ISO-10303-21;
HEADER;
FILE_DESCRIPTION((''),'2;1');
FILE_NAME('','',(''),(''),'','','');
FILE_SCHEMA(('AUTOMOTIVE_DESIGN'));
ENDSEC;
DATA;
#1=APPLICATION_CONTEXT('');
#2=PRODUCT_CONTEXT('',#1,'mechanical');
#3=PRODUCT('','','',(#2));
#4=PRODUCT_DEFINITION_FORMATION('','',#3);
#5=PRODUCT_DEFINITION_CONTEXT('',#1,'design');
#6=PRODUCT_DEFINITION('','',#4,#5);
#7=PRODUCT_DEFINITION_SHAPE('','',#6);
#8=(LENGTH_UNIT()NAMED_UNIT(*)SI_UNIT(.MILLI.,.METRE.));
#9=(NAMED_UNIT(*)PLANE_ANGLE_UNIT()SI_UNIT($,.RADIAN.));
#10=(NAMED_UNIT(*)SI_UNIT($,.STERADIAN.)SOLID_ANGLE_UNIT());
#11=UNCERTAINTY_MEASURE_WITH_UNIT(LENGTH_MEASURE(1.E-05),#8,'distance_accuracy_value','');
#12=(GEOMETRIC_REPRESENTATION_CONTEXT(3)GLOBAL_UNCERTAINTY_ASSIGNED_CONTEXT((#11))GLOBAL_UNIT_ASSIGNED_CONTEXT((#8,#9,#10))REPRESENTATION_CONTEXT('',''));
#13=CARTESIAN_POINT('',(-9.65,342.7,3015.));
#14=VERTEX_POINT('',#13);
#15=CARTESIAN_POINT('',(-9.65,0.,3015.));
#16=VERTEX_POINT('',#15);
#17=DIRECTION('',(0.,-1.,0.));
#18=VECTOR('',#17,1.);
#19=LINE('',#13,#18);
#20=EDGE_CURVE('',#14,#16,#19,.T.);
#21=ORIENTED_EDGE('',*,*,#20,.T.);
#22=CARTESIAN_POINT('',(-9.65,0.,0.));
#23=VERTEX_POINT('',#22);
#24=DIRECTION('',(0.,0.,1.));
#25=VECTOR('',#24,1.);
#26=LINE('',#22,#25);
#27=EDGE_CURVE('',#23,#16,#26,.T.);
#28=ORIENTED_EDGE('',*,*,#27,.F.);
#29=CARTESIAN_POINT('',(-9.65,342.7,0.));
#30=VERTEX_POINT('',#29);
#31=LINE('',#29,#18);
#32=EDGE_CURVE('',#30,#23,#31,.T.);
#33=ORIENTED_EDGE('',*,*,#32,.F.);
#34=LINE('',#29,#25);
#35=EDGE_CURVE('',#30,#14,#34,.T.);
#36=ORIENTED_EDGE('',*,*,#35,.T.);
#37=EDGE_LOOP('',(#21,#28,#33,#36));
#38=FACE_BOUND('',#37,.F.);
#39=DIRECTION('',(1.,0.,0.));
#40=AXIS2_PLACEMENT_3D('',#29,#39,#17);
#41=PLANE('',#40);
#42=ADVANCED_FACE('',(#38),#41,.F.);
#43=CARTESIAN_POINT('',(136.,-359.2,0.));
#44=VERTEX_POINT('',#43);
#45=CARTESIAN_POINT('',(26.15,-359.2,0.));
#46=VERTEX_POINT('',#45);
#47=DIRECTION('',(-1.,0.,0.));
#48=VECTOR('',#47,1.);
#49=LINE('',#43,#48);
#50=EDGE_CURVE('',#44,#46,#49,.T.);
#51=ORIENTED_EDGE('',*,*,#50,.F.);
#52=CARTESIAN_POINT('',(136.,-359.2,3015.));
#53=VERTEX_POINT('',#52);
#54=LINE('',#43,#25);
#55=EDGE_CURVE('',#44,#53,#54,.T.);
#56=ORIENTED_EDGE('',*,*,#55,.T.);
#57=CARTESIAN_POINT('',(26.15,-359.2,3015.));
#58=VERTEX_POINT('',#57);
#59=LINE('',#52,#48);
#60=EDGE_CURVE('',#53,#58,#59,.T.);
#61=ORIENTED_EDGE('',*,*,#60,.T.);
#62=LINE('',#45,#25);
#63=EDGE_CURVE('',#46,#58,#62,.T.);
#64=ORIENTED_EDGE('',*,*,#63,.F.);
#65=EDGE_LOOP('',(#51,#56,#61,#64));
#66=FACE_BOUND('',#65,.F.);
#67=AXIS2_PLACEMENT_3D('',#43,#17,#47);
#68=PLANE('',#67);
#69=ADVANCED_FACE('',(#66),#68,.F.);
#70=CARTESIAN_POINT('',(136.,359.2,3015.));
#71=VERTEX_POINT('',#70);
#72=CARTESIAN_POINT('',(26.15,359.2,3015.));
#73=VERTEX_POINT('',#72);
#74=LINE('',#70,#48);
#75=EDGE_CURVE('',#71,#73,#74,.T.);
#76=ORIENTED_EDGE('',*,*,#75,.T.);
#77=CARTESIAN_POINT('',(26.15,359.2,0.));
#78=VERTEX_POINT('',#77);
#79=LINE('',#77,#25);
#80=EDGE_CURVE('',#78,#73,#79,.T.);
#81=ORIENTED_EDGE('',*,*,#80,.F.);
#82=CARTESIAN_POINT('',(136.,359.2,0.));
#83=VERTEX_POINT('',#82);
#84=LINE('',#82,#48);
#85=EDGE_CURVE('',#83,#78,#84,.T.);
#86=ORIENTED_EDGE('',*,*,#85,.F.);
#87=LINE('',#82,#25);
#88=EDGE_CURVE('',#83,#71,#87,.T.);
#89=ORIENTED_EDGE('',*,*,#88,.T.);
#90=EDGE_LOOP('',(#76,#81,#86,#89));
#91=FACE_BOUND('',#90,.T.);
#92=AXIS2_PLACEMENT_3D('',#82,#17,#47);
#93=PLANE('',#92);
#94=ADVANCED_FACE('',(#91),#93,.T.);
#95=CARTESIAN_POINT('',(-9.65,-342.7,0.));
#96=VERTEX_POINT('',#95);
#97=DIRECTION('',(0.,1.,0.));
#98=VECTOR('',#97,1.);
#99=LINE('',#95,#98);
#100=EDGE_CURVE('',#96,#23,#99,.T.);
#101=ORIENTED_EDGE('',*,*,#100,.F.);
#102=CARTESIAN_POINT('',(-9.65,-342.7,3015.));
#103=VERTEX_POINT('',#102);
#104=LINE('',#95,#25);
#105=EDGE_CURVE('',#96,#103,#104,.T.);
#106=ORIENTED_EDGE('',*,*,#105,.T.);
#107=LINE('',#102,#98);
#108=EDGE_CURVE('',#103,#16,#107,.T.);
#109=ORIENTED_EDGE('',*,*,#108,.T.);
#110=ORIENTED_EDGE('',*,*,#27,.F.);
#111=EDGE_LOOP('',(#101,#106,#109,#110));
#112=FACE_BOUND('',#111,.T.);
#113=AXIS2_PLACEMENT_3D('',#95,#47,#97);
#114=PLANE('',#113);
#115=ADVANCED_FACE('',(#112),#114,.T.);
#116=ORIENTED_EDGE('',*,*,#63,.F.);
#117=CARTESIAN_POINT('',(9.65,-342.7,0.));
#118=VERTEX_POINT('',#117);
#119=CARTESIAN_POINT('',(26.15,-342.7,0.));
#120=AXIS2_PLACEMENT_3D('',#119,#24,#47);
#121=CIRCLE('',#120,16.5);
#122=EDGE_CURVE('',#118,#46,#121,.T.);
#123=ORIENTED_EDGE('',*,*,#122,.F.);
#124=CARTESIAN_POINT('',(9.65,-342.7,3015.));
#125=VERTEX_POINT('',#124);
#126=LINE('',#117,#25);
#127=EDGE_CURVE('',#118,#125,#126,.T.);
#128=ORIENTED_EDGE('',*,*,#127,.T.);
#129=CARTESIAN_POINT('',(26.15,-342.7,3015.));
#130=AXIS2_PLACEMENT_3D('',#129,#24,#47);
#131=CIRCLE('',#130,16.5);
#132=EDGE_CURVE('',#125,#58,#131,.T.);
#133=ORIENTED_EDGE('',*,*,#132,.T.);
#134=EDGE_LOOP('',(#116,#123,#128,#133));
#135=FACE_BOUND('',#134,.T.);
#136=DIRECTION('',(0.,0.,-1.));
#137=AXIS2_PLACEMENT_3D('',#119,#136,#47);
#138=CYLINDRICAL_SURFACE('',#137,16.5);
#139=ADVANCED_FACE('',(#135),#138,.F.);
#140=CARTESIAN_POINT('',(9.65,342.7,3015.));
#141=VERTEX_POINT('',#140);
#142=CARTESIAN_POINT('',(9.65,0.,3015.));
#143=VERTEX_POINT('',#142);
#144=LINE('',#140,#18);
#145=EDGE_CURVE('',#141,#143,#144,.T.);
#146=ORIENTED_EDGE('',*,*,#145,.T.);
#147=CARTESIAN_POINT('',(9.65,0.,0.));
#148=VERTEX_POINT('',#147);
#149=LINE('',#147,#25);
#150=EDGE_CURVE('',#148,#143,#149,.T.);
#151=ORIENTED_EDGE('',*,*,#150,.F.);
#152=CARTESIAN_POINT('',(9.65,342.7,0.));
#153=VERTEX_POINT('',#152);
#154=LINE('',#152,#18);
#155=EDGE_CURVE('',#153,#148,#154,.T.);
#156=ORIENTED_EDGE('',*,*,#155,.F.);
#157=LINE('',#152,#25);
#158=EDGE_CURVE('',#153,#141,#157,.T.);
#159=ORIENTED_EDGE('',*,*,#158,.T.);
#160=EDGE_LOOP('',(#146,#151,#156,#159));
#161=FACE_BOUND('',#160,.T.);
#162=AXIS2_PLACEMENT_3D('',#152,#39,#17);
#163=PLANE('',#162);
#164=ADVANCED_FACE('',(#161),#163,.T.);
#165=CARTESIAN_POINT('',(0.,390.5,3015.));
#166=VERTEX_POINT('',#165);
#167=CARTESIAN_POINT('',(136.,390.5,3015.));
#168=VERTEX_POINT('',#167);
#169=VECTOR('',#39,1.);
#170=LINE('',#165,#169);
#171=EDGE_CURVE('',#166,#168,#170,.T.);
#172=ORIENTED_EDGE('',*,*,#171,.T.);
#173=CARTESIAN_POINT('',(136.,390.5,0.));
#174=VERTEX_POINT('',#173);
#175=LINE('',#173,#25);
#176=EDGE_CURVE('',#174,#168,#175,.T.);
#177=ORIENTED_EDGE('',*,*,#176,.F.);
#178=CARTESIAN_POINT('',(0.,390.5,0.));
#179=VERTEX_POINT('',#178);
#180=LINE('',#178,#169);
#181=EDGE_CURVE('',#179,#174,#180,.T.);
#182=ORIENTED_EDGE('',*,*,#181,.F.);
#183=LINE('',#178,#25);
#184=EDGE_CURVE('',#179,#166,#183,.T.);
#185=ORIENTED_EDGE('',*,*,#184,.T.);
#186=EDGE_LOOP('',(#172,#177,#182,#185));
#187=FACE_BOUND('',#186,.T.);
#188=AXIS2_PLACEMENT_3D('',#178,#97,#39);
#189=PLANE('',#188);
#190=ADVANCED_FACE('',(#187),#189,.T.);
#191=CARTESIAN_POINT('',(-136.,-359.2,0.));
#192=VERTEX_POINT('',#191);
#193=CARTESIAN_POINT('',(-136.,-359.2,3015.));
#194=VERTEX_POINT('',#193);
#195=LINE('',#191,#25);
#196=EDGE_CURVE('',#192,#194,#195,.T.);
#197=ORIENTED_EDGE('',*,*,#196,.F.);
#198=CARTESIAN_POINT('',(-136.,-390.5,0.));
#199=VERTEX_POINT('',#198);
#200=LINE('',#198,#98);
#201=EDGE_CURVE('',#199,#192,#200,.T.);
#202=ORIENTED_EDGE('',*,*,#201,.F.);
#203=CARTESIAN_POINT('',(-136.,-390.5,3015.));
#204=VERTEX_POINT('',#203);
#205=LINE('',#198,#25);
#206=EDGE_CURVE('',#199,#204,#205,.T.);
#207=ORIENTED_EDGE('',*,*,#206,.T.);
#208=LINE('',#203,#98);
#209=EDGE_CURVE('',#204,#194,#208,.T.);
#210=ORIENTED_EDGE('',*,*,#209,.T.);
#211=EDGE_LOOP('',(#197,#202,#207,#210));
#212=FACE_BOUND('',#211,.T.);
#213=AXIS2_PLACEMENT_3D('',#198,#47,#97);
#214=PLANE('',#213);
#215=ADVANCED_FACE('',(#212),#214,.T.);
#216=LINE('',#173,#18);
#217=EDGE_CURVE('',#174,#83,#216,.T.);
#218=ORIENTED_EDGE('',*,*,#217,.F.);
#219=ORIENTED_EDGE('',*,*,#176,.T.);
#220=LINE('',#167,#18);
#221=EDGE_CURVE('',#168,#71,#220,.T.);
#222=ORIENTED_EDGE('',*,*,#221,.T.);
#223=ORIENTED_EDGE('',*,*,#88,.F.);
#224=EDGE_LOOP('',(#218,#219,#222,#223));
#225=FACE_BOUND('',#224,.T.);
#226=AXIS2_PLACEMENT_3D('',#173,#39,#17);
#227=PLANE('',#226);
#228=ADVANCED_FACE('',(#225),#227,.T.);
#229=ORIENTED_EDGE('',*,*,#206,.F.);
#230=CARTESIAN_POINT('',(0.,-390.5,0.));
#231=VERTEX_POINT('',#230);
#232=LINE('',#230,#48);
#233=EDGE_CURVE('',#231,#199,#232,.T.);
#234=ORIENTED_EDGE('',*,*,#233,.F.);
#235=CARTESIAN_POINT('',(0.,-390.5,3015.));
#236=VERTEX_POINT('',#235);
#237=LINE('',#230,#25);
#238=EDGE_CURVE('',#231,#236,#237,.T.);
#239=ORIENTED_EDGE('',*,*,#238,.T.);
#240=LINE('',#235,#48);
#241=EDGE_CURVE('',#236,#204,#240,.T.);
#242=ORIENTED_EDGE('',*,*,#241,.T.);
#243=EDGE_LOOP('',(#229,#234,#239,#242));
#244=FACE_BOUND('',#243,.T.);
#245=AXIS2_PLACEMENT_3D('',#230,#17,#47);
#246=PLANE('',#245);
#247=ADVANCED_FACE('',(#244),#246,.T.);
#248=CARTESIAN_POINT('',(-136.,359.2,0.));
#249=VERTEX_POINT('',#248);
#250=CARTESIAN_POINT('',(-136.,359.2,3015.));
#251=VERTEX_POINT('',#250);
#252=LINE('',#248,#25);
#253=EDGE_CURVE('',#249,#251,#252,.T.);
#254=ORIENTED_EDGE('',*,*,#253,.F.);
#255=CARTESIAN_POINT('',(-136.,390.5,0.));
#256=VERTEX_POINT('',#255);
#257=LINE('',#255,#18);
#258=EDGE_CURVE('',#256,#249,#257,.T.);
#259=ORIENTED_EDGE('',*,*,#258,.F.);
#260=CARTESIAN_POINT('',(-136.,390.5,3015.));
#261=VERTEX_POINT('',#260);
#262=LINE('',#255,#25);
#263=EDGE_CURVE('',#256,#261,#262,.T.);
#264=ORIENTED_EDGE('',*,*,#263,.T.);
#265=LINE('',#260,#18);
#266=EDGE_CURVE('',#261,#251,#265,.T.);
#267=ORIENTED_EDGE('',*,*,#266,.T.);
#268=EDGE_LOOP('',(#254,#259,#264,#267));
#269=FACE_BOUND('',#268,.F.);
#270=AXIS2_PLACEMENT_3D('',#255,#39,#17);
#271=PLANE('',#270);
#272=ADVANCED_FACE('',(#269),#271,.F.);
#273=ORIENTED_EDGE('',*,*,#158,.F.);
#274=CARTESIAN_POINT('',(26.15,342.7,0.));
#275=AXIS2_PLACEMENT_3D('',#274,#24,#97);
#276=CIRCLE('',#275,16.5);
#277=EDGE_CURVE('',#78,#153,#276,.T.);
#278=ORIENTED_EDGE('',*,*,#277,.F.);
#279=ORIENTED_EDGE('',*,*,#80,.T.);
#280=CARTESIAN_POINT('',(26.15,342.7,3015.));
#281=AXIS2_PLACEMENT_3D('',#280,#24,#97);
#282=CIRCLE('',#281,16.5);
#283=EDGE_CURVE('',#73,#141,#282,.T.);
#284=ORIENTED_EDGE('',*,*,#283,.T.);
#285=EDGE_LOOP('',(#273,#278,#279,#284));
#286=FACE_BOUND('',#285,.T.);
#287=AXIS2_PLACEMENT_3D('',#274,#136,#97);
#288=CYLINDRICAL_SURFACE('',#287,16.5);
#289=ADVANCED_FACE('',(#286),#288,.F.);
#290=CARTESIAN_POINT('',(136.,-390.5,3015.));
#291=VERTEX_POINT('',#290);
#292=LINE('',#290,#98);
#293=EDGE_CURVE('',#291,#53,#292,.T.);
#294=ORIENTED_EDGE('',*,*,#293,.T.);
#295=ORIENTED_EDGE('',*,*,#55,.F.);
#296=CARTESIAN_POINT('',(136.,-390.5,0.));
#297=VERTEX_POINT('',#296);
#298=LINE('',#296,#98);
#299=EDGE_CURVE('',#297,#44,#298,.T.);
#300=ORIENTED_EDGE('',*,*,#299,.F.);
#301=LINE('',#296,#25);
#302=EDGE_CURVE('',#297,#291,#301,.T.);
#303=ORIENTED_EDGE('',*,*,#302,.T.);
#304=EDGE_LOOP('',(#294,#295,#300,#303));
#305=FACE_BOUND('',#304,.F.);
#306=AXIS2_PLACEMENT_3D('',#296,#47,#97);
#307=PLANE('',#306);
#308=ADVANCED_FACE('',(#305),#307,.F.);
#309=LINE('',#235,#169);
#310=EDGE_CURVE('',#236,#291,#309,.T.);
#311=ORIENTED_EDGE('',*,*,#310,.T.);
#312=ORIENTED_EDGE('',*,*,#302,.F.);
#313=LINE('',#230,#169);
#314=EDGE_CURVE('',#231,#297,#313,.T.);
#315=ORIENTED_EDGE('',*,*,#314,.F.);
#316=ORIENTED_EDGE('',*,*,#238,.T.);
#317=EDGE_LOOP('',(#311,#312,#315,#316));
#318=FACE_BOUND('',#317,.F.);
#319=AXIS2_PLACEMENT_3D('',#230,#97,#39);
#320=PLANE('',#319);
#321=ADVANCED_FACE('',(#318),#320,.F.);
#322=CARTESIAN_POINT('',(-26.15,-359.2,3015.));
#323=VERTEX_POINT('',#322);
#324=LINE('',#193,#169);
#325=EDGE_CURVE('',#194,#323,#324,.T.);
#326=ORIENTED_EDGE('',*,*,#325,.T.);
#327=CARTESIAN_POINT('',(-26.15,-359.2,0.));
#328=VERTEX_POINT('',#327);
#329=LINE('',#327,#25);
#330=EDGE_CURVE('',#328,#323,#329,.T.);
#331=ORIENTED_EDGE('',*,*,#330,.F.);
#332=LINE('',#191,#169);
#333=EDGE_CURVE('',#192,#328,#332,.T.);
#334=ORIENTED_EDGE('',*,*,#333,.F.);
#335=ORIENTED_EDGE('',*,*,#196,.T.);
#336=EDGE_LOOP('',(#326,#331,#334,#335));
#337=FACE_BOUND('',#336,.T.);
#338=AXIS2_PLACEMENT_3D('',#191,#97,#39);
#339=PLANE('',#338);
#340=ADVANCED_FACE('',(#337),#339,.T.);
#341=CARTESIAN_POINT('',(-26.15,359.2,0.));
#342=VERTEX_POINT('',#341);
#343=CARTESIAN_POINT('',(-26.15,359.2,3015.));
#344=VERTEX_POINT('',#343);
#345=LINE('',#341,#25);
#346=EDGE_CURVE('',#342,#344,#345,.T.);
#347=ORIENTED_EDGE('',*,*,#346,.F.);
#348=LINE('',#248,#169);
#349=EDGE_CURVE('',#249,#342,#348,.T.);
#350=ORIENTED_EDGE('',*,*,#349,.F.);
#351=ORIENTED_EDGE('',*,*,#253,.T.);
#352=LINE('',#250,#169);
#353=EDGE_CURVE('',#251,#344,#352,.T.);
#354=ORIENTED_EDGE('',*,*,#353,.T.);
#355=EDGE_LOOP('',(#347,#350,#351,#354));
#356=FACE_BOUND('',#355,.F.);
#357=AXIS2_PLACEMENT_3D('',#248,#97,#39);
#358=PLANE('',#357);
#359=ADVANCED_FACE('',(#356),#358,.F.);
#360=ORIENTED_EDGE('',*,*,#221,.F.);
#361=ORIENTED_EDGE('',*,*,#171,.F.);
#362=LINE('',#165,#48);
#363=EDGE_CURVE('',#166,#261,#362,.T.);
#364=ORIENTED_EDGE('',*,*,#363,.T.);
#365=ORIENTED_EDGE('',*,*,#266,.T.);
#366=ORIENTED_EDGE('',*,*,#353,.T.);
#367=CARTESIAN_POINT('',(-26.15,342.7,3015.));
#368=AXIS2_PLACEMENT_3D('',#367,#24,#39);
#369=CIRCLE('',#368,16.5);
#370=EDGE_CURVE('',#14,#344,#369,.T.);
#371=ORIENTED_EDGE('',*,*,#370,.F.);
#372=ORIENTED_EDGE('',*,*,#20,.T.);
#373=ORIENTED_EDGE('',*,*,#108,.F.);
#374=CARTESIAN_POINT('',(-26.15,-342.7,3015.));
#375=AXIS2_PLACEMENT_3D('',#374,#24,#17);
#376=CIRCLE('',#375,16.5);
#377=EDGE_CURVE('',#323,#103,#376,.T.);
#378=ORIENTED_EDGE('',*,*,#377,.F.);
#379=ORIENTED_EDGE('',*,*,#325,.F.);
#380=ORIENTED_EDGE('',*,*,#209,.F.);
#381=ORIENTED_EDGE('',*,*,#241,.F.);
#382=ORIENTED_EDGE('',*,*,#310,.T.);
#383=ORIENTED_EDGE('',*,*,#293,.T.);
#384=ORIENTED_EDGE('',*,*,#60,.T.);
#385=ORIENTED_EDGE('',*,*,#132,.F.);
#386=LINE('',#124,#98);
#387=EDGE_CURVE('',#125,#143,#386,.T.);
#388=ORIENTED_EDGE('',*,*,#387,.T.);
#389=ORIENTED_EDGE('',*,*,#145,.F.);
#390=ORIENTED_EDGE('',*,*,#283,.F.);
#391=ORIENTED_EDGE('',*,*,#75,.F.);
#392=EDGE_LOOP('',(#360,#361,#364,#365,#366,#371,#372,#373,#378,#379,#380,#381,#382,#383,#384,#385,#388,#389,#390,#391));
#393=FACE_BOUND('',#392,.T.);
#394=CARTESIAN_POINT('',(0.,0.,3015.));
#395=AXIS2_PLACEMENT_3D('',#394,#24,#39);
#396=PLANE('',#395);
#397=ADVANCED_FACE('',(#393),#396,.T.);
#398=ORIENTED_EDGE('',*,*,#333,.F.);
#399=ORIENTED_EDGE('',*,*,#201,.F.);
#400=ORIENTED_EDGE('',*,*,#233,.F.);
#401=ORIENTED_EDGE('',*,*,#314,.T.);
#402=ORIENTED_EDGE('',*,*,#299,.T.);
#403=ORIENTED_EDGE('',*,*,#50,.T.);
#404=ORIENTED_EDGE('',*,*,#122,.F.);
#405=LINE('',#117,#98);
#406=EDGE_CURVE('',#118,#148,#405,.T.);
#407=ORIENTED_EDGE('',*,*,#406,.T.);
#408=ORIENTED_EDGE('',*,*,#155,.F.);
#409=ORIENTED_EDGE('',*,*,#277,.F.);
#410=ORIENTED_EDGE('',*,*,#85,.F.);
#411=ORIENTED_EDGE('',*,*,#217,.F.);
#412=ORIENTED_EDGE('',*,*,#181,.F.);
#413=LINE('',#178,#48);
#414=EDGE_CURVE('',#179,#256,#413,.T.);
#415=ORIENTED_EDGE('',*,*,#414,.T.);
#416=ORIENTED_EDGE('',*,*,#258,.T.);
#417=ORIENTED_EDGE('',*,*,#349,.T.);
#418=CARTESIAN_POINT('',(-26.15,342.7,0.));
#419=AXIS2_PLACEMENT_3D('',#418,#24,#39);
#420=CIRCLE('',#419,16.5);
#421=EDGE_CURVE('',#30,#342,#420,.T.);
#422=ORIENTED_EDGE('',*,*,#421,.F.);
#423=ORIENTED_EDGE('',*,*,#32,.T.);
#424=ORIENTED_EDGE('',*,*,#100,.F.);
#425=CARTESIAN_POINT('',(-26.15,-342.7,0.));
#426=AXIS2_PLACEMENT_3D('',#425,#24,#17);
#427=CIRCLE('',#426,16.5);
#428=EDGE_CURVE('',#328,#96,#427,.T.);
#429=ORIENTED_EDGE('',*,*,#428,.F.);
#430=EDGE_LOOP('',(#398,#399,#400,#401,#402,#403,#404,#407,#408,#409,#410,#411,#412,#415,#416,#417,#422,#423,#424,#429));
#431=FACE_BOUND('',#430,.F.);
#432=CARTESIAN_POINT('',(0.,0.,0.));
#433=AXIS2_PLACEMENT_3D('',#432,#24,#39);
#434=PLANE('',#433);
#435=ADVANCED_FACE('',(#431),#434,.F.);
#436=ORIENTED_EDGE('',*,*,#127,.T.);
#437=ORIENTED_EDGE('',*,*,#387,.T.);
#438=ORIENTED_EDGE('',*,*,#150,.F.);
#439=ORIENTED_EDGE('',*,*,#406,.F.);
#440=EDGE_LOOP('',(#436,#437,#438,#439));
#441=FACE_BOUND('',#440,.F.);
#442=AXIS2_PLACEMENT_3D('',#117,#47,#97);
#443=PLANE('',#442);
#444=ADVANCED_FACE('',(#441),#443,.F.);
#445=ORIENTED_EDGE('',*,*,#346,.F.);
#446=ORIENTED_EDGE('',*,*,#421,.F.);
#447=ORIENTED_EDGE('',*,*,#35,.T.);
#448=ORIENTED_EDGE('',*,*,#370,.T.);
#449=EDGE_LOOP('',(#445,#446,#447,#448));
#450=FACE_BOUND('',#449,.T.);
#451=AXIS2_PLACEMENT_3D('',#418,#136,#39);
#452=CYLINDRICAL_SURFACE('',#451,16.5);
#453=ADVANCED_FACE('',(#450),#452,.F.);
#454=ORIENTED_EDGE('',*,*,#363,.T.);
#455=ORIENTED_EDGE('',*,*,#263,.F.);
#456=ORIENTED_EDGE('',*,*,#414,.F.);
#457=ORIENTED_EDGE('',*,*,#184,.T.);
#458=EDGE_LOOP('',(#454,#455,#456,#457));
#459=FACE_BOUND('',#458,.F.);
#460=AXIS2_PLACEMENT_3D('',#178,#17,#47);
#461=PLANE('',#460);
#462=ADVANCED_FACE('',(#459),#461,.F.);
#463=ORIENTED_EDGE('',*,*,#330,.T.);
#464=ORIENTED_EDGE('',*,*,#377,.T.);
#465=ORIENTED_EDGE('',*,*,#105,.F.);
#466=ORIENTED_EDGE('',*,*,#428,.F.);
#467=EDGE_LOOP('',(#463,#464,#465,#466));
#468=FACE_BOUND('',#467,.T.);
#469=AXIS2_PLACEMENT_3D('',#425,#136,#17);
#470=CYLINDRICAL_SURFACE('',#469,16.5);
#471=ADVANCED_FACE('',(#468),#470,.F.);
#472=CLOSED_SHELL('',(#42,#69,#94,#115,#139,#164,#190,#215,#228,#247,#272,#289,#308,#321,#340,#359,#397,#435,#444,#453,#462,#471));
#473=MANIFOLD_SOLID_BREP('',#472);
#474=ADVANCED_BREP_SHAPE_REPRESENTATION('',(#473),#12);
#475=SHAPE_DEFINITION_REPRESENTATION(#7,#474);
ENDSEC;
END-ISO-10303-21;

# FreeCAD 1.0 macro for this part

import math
import FreeCAD as App
import Part
import Sketcher
Q = App.Units.Quantity

doc = App.newDocument("Part")
params = doc.addObject("Spreadsheet::Sheet", "Params")
for row, (alias, value) in enumerate([
    ("sketch1_radius", "16.5 mm"),
    ("sketch1_height", "31.3 mm"),
    ("pad1_length", "3015 mm"),
], start=1):
    params.set(f"A{row}", alias)
    params.set(f"B{row}", "=" + value)
    params.setAlias(f"B{row}", alias)

body = doc.addObject("PartDesign::Body", "Body")

# Sketch on XY plane
sketch1 = body.newObject("Sketcher::SketchObject", "Sketch")
sketch1.AttachmentSupport = (doc.getObject("XY_Plane"), [""])
sketch1.MapMode = "FlatFace"
sketch1.addGeometry([
    Part.LineSegment(App.Vector(-136, -359, 0), App.Vector(-136, -390, 0)),  # 0
    Part.LineSegment(App.Vector(-136, -390, 0), App.Vector(136, -390, 0)),  # 1
    Part.LineSegment(App.Vector(136, -390, 0), App.Vector(136, -359, 0)),  # 2
    Part.LineSegment(App.Vector(136, -359, 0), App.Vector(26, -359, 0)),  # 3
    Part.ArcOfCircle(Part.Circle(App.Vector(26, -343, 0), App.Vector(0, 0, 1), 16), math.radians(180), math.radians(270)),  # 4
    Part.LineSegment(App.Vector(10, -343, 0), App.Vector(10, 343, 0)),  # 5
    Part.ArcOfCircle(Part.Circle(App.Vector(26, 343, 0), App.Vector(0, 0, 1), 16), math.radians(90), math.radians(180)),  # 6
    Part.LineSegment(App.Vector(26, 359, 0), App.Vector(136, 359, 0)),  # 7
    Part.LineSegment(App.Vector(136, 359, 0), App.Vector(136, 390, 0)),  # 8
    Part.LineSegment(App.Vector(136, 390, 0), App.Vector(-136, 390, 0)),  # 9
    Part.LineSegment(App.Vector(-136, 390, 0), App.Vector(-136, 359, 0)),  # 10
    Part.LineSegment(App.Vector(-136, 359, 0), App.Vector(-26, 359, 0)),  # 11
    Part.ArcOfCircle(Part.Circle(App.Vector(-26, 343, 0), App.Vector(0, 0, 1), 16), math.radians(0), math.radians(90)),  # 12
    Part.LineSegment(App.Vector(-10, 343, 0), App.Vector(-10, -343, 0)),  # 13
    Part.ArcOfCircle(Part.Circle(App.Vector(-26, -343, 0), App.Vector(0, 0, 1), 16), math.radians(-90), math.radians(0)),  # 14
    Part.LineSegment(App.Vector(-26, -359, 0), App.Vector(-136, -359, 0)),  # 15
], False)
sketch1.addConstraint([
    Sketcher.Constraint("Coincident", 0, 2, 1, 1),
    Sketcher.Constraint("Coincident", 1, 2, 2, 1),
    Sketcher.Constraint("Coincident", 2, 2, 3, 1),
    Sketcher.Constraint("Tangent", 3, 2, 4, 2),
    Sketcher.Constraint("Tangent", 4, 1, 5, 1),
    Sketcher.Constraint("Tangent", 5, 2, 6, 2),
    Sketcher.Constraint("Tangent", 6, 1, 7, 1),
    Sketcher.Constraint("Coincident", 7, 2, 8, 1),
    Sketcher.Constraint("Coincident", 8, 2, 9, 1),
    Sketcher.Constraint("Coincident", 9, 2, 10, 1),
    Sketcher.Constraint("Coincident", 10, 2, 11, 1),
    Sketcher.Constraint("Tangent", 11, 2, 12, 2),
    Sketcher.Constraint("Tangent", 12, 1, 13, 1),
    Sketcher.Constraint("Tangent", 13, 2, 14, 2),
    Sketcher.Constraint("Tangent", 14, 1, 15, 1),
    Sketcher.Constraint("Coincident", 15, 2, 0, 1),
    Sketcher.Constraint("Vertical", 0),
    Sketcher.Constraint("Horizontal", 1),
    Sketcher.Constraint("Vertical", 2),
    Sketcher.Constraint("Horizontal", 3),
    Sketcher.Constraint("Vertical", 5),
    Sketcher.Constraint("Horizontal", 7),
    Sketcher.Constraint("Vertical", 8),
    Sketcher.Constraint("Horizontal", 9),
    Sketcher.Constraint("Vertical", 10),
    Sketcher.Constraint("Horizontal", 11),
    Sketcher.Constraint("Vertical", 13),
    Sketcher.Constraint("Horizontal", 15),
    Sketcher.Constraint("Equal", 4, 6),
    Sketcher.Constraint("Equal", 6, 12),
    Sketcher.Constraint("Equal", 12, 14),
    Sketcher.Constraint("Symmetric", 4, 3, 12, 3, -1, 1),
    Sketcher.Constraint("Symmetric", 0, 2, 8, 2, -1, 1),
    Sketcher.Constraint("Symmetric", 7, 2, 10, 2, -2),
    Sketcher.Constraint("Symmetric", 2, 2, 15, 2, -2),
    Sketcher.Constraint("Radius", 4, Q("16.5 mm")),
    Sketcher.Constraint("DistanceY", 0, 2, 0, 1, Q("31.3 mm")),
    Sketcher.Constraint("DistanceX", 0, 2, -1, 1, Q("136 mm")),
    Sketcher.Constraint("DistanceY", 0, 2, -1, 1, Q("390.5 mm")),
    Sketcher.Constraint("DistanceX", -1, 1, 4, 1, Q("9.65 mm")),
])
sketch1.setExpression("Constraints[35]", "Params.sketch1_radius")
sketch1.setExpression("Constraints[36]", "Params.sketch1_height")
pad1 = body.newObject("PartDesign::Pad", "Pad")
pad1.Profile = sketch1
pad1.setExpression("Length", "Params.pad1_length")

doc.recompute()
